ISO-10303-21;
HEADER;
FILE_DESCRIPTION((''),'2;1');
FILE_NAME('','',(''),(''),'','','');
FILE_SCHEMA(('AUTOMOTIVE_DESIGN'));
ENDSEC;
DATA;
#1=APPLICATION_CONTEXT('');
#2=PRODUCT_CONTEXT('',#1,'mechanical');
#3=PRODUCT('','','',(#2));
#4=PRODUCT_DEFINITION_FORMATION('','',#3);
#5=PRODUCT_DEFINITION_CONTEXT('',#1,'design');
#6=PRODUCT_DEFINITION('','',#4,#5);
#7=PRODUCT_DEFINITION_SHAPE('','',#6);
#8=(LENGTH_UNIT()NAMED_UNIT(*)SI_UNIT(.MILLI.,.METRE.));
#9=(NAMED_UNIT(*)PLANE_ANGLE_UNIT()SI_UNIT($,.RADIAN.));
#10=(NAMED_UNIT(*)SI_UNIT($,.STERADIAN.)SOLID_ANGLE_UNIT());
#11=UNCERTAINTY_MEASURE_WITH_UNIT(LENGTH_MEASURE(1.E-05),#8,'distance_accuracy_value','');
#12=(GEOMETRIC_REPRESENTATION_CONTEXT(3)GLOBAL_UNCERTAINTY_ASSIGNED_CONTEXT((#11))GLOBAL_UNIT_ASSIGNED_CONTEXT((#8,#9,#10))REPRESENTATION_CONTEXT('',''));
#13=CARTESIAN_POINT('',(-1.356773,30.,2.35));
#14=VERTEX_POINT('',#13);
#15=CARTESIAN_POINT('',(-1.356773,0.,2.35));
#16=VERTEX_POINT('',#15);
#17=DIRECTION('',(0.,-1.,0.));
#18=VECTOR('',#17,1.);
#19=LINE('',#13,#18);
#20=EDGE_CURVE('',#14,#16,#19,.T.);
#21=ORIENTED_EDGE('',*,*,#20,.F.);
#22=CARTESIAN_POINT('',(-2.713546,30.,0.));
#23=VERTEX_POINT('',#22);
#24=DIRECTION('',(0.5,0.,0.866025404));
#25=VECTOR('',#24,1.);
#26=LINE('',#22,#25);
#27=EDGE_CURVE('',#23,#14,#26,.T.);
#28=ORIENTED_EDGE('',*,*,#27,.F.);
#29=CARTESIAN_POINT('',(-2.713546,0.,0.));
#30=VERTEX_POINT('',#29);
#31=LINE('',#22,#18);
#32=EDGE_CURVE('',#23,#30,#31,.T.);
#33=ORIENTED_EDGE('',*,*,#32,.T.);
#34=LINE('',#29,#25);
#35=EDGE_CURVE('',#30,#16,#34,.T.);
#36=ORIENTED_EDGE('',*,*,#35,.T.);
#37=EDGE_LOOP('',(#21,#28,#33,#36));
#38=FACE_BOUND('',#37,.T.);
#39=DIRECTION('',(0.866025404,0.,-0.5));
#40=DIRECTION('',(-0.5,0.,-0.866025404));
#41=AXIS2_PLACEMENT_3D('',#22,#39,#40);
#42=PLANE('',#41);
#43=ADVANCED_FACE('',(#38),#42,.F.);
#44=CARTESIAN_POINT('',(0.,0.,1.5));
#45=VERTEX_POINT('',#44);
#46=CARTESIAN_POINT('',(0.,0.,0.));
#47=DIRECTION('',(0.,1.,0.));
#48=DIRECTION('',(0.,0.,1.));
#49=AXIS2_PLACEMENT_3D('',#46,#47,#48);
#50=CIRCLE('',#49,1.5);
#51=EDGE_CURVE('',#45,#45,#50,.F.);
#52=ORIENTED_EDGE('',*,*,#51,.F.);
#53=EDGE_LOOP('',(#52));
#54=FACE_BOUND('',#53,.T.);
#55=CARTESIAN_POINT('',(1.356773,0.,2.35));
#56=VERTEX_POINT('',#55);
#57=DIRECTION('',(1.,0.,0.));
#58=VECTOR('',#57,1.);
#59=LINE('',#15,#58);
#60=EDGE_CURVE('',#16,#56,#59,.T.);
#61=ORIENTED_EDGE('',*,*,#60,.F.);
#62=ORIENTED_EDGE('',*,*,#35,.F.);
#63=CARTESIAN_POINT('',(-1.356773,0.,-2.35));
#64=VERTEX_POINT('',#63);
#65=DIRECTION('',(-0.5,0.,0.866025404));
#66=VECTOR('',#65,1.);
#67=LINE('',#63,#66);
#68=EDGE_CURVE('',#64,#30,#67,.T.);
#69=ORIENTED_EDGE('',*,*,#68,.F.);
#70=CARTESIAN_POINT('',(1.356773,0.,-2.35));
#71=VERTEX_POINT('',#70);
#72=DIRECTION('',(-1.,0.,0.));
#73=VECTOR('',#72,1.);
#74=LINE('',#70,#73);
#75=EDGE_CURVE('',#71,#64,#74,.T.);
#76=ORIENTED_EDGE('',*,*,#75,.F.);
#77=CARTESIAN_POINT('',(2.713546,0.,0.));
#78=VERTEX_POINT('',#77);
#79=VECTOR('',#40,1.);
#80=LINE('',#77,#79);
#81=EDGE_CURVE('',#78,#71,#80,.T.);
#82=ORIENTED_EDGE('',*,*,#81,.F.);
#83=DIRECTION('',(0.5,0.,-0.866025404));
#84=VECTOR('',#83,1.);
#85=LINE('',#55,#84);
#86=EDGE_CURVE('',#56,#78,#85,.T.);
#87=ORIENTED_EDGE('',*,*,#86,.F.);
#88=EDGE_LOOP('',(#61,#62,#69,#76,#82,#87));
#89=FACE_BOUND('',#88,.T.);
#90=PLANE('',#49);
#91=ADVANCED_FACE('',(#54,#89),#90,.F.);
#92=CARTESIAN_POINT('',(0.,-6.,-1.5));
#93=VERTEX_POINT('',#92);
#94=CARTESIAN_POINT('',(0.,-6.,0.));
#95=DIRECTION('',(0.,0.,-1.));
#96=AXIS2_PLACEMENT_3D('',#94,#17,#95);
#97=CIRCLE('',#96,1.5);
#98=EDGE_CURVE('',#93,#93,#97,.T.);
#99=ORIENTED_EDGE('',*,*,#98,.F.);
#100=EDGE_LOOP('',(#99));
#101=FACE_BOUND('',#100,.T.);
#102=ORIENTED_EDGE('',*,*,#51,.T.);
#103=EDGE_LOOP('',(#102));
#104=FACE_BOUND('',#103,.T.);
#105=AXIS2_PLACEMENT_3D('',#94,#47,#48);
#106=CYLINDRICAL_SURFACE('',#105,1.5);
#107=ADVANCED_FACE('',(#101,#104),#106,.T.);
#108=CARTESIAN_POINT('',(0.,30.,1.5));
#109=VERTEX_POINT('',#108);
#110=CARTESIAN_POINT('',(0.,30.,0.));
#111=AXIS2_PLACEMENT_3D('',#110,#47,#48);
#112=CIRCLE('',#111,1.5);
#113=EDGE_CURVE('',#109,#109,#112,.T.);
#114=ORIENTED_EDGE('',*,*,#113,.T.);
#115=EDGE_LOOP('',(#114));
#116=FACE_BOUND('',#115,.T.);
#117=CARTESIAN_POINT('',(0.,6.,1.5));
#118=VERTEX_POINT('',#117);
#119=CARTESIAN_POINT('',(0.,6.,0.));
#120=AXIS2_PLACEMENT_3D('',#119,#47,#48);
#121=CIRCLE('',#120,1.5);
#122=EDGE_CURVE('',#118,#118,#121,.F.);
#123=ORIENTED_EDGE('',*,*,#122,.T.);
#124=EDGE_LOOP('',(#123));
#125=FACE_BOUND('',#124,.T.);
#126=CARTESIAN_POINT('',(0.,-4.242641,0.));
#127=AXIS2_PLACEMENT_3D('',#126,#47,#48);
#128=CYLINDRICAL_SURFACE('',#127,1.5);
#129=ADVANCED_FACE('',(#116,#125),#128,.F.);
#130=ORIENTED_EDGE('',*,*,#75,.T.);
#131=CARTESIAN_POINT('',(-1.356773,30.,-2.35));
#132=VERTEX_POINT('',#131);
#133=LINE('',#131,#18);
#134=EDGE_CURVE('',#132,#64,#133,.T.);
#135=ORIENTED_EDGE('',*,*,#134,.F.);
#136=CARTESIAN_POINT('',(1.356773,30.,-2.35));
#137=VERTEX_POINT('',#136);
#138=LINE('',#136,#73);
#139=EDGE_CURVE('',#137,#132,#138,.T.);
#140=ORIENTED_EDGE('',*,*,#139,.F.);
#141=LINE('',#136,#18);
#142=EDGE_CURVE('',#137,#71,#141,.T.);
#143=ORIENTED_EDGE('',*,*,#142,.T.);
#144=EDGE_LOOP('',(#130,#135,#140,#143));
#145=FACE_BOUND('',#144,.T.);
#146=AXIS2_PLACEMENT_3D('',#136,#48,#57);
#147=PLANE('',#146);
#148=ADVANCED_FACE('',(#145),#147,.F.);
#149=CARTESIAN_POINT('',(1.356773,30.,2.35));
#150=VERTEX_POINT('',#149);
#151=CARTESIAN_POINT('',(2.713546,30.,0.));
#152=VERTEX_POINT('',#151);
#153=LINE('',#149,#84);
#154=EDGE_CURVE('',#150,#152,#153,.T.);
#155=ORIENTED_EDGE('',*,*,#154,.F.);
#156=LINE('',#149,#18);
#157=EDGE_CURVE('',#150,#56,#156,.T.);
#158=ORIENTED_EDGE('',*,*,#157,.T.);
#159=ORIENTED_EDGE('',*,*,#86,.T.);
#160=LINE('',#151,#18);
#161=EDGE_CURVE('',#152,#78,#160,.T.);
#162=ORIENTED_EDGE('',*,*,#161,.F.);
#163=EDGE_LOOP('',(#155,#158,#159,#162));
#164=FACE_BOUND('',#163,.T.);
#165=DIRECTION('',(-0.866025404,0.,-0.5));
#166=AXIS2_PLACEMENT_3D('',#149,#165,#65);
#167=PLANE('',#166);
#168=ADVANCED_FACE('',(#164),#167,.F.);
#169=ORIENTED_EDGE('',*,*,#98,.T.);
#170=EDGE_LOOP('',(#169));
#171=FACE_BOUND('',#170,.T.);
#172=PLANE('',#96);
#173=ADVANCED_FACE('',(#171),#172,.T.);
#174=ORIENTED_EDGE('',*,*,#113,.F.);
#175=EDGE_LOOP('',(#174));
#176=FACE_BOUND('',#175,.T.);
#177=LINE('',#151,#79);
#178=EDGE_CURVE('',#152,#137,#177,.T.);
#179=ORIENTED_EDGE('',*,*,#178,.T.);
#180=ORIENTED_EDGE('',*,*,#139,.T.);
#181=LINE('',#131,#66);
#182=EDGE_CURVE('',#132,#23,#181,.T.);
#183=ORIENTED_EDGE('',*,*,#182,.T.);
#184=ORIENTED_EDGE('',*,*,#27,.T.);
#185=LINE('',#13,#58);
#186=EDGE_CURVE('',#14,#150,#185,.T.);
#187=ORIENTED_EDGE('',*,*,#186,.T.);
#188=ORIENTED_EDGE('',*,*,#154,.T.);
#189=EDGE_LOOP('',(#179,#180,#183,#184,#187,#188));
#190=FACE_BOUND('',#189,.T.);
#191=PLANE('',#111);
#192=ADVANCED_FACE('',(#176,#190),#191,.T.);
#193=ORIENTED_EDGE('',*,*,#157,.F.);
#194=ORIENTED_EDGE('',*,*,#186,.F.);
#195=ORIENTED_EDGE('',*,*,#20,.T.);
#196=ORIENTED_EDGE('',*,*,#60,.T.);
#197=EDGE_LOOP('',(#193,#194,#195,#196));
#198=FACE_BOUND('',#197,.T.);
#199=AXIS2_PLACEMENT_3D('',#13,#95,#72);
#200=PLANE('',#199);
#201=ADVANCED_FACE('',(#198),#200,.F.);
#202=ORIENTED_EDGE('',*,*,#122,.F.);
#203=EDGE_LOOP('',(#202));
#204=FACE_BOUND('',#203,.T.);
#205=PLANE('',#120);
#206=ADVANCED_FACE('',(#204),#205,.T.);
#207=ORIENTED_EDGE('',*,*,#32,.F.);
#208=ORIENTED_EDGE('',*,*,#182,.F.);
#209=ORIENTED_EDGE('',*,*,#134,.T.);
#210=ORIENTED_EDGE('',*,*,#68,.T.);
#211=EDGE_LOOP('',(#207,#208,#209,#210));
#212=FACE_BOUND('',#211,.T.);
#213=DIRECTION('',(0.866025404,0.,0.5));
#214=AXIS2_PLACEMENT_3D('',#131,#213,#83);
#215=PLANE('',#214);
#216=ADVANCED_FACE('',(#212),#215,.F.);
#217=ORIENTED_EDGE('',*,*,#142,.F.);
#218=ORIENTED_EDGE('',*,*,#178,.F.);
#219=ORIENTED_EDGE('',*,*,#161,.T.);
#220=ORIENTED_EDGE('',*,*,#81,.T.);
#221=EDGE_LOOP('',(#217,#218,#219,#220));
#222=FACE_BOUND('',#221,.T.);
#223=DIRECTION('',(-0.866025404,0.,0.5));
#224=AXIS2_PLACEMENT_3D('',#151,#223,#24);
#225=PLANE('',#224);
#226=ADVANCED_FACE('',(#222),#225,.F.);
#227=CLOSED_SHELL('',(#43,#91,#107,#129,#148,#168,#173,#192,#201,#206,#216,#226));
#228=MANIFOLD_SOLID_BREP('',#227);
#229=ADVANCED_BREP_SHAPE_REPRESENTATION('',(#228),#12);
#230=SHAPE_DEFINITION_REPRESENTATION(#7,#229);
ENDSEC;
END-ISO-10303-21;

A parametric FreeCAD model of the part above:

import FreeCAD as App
import Part
import Sketcher
Q = App.Units.Quantity


def add_polygon(sketch, points):
    """Adds a closed chain of lines whose ends are joined by coincident constraints."""
    first, n = sketch.GeometryCount, len(points)
    for a, b in zip(points, points[1:] + points[:1]):
        sketch.addGeometry(Part.LineSegment(App.Vector(*a, 0), App.Vector(*b, 0)), False)
    for i in range(n):
        sketch.addConstraint(Sketcher.Constraint("Coincident", first + i, 2, first + (i + 1) % n, 1))

doc = App.newDocument("Part")
body = doc.addObject("PartDesign::Body", "Body")

# Sketch on XZ plane
sketch1 = body.newObject("Sketcher::SketchObject", "Sketch")
sketch1.AttachmentSupport = (doc.getObject("XZ_Plane"), [""])
sketch1.MapMode = "FlatFace"
add_polygon(sketch1, [(1.4, 2.4), (2.7, 0), (1.4, -2.4), (-1.4, -2.4), (-2.7, 0), (-1.4, 2.4)])  # lines 0-5
sketch1.addConstraint([
    Sketcher.Constraint("Horizontal", 2),
    Sketcher.Constraint("Horizontal", 5),
    Sketcher.Constraint("Symmetric", 0, 2, 3, 2, -1, 1),
    Sketcher.Constraint("Symmetric", 1, 2, 4, 2, -1, 1),
    Sketcher.Constraint("PointOnObject", 0, 2, -1),
    Sketcher.Constraint("Parallel", 0, 3),
    Sketcher.Constraint("Vertical", 2, 2, 4, 2),
    Sketcher.Constraint("Angle", 0, Q("-60 deg")),
    Sketcher.Constraint("DistanceY", 2, 2, 4, 2, Q("4.7 mm")),
    Sketcher.Constraint("DistanceX", 2, 2, 2, 1, Q("2.713546 mm")),
])
pad1 = body.newObject("PartDesign::Pad", "Pad")
pad1.Profile = sketch1
pad1.Length = 30
pad1.Reversed = True

# Sketch on XZ plane
sketch2 = body.newObject("Sketcher::SketchObject", "Sketch001")
sketch2.AttachmentSupport = (doc.getObject("XZ_Plane"), [""])
sketch2.MapMode = "FlatFace"
sketch2.addGeometry(Part.Circle(App.Vector(0, 0, 0), App.Vector(0, 0, 1), 1.5), False)
sketch2.addConstraint([
    Sketcher.Constraint("Coincident", 0, 3, -1, 1),
    Sketcher.Constraint("Diameter", 0, Q("3 mm")),
])
pad2 = body.newObject("PartDesign::Pad", "Pad001")
pad2.Profile = sketch2
pad2.Length = 6

# Sketch on XZ plane
sketch3 = body.newObject("Sketcher::SketchObject", "Sketch002")
sketch3.AttachmentSupport = (doc.getObject("XZ_Plane"), [""])
sketch3.MapMode = "FlatFace"
sketch3.AttachmentOffset = App.Placement(App.Vector(0, 0, -30), App.Rotation())
sketch3.addGeometry(Part.Circle(App.Vector(0, 0, 0), App.Vector(0, 0, 1), 1.5), False)
sketch3.addConstraint([
    Sketcher.Constraint("Coincident", 0, 3, -1, 1),
    Sketcher.Constraint("Diameter", 0, Q("3 mm")),
])
pocket1 = body.newObject("PartDesign::Pocket", "Pocket")
pocket1.Profile = sketch3
pocket1.Length = 24
pocket1.Reversed = True

doc.recompute()
